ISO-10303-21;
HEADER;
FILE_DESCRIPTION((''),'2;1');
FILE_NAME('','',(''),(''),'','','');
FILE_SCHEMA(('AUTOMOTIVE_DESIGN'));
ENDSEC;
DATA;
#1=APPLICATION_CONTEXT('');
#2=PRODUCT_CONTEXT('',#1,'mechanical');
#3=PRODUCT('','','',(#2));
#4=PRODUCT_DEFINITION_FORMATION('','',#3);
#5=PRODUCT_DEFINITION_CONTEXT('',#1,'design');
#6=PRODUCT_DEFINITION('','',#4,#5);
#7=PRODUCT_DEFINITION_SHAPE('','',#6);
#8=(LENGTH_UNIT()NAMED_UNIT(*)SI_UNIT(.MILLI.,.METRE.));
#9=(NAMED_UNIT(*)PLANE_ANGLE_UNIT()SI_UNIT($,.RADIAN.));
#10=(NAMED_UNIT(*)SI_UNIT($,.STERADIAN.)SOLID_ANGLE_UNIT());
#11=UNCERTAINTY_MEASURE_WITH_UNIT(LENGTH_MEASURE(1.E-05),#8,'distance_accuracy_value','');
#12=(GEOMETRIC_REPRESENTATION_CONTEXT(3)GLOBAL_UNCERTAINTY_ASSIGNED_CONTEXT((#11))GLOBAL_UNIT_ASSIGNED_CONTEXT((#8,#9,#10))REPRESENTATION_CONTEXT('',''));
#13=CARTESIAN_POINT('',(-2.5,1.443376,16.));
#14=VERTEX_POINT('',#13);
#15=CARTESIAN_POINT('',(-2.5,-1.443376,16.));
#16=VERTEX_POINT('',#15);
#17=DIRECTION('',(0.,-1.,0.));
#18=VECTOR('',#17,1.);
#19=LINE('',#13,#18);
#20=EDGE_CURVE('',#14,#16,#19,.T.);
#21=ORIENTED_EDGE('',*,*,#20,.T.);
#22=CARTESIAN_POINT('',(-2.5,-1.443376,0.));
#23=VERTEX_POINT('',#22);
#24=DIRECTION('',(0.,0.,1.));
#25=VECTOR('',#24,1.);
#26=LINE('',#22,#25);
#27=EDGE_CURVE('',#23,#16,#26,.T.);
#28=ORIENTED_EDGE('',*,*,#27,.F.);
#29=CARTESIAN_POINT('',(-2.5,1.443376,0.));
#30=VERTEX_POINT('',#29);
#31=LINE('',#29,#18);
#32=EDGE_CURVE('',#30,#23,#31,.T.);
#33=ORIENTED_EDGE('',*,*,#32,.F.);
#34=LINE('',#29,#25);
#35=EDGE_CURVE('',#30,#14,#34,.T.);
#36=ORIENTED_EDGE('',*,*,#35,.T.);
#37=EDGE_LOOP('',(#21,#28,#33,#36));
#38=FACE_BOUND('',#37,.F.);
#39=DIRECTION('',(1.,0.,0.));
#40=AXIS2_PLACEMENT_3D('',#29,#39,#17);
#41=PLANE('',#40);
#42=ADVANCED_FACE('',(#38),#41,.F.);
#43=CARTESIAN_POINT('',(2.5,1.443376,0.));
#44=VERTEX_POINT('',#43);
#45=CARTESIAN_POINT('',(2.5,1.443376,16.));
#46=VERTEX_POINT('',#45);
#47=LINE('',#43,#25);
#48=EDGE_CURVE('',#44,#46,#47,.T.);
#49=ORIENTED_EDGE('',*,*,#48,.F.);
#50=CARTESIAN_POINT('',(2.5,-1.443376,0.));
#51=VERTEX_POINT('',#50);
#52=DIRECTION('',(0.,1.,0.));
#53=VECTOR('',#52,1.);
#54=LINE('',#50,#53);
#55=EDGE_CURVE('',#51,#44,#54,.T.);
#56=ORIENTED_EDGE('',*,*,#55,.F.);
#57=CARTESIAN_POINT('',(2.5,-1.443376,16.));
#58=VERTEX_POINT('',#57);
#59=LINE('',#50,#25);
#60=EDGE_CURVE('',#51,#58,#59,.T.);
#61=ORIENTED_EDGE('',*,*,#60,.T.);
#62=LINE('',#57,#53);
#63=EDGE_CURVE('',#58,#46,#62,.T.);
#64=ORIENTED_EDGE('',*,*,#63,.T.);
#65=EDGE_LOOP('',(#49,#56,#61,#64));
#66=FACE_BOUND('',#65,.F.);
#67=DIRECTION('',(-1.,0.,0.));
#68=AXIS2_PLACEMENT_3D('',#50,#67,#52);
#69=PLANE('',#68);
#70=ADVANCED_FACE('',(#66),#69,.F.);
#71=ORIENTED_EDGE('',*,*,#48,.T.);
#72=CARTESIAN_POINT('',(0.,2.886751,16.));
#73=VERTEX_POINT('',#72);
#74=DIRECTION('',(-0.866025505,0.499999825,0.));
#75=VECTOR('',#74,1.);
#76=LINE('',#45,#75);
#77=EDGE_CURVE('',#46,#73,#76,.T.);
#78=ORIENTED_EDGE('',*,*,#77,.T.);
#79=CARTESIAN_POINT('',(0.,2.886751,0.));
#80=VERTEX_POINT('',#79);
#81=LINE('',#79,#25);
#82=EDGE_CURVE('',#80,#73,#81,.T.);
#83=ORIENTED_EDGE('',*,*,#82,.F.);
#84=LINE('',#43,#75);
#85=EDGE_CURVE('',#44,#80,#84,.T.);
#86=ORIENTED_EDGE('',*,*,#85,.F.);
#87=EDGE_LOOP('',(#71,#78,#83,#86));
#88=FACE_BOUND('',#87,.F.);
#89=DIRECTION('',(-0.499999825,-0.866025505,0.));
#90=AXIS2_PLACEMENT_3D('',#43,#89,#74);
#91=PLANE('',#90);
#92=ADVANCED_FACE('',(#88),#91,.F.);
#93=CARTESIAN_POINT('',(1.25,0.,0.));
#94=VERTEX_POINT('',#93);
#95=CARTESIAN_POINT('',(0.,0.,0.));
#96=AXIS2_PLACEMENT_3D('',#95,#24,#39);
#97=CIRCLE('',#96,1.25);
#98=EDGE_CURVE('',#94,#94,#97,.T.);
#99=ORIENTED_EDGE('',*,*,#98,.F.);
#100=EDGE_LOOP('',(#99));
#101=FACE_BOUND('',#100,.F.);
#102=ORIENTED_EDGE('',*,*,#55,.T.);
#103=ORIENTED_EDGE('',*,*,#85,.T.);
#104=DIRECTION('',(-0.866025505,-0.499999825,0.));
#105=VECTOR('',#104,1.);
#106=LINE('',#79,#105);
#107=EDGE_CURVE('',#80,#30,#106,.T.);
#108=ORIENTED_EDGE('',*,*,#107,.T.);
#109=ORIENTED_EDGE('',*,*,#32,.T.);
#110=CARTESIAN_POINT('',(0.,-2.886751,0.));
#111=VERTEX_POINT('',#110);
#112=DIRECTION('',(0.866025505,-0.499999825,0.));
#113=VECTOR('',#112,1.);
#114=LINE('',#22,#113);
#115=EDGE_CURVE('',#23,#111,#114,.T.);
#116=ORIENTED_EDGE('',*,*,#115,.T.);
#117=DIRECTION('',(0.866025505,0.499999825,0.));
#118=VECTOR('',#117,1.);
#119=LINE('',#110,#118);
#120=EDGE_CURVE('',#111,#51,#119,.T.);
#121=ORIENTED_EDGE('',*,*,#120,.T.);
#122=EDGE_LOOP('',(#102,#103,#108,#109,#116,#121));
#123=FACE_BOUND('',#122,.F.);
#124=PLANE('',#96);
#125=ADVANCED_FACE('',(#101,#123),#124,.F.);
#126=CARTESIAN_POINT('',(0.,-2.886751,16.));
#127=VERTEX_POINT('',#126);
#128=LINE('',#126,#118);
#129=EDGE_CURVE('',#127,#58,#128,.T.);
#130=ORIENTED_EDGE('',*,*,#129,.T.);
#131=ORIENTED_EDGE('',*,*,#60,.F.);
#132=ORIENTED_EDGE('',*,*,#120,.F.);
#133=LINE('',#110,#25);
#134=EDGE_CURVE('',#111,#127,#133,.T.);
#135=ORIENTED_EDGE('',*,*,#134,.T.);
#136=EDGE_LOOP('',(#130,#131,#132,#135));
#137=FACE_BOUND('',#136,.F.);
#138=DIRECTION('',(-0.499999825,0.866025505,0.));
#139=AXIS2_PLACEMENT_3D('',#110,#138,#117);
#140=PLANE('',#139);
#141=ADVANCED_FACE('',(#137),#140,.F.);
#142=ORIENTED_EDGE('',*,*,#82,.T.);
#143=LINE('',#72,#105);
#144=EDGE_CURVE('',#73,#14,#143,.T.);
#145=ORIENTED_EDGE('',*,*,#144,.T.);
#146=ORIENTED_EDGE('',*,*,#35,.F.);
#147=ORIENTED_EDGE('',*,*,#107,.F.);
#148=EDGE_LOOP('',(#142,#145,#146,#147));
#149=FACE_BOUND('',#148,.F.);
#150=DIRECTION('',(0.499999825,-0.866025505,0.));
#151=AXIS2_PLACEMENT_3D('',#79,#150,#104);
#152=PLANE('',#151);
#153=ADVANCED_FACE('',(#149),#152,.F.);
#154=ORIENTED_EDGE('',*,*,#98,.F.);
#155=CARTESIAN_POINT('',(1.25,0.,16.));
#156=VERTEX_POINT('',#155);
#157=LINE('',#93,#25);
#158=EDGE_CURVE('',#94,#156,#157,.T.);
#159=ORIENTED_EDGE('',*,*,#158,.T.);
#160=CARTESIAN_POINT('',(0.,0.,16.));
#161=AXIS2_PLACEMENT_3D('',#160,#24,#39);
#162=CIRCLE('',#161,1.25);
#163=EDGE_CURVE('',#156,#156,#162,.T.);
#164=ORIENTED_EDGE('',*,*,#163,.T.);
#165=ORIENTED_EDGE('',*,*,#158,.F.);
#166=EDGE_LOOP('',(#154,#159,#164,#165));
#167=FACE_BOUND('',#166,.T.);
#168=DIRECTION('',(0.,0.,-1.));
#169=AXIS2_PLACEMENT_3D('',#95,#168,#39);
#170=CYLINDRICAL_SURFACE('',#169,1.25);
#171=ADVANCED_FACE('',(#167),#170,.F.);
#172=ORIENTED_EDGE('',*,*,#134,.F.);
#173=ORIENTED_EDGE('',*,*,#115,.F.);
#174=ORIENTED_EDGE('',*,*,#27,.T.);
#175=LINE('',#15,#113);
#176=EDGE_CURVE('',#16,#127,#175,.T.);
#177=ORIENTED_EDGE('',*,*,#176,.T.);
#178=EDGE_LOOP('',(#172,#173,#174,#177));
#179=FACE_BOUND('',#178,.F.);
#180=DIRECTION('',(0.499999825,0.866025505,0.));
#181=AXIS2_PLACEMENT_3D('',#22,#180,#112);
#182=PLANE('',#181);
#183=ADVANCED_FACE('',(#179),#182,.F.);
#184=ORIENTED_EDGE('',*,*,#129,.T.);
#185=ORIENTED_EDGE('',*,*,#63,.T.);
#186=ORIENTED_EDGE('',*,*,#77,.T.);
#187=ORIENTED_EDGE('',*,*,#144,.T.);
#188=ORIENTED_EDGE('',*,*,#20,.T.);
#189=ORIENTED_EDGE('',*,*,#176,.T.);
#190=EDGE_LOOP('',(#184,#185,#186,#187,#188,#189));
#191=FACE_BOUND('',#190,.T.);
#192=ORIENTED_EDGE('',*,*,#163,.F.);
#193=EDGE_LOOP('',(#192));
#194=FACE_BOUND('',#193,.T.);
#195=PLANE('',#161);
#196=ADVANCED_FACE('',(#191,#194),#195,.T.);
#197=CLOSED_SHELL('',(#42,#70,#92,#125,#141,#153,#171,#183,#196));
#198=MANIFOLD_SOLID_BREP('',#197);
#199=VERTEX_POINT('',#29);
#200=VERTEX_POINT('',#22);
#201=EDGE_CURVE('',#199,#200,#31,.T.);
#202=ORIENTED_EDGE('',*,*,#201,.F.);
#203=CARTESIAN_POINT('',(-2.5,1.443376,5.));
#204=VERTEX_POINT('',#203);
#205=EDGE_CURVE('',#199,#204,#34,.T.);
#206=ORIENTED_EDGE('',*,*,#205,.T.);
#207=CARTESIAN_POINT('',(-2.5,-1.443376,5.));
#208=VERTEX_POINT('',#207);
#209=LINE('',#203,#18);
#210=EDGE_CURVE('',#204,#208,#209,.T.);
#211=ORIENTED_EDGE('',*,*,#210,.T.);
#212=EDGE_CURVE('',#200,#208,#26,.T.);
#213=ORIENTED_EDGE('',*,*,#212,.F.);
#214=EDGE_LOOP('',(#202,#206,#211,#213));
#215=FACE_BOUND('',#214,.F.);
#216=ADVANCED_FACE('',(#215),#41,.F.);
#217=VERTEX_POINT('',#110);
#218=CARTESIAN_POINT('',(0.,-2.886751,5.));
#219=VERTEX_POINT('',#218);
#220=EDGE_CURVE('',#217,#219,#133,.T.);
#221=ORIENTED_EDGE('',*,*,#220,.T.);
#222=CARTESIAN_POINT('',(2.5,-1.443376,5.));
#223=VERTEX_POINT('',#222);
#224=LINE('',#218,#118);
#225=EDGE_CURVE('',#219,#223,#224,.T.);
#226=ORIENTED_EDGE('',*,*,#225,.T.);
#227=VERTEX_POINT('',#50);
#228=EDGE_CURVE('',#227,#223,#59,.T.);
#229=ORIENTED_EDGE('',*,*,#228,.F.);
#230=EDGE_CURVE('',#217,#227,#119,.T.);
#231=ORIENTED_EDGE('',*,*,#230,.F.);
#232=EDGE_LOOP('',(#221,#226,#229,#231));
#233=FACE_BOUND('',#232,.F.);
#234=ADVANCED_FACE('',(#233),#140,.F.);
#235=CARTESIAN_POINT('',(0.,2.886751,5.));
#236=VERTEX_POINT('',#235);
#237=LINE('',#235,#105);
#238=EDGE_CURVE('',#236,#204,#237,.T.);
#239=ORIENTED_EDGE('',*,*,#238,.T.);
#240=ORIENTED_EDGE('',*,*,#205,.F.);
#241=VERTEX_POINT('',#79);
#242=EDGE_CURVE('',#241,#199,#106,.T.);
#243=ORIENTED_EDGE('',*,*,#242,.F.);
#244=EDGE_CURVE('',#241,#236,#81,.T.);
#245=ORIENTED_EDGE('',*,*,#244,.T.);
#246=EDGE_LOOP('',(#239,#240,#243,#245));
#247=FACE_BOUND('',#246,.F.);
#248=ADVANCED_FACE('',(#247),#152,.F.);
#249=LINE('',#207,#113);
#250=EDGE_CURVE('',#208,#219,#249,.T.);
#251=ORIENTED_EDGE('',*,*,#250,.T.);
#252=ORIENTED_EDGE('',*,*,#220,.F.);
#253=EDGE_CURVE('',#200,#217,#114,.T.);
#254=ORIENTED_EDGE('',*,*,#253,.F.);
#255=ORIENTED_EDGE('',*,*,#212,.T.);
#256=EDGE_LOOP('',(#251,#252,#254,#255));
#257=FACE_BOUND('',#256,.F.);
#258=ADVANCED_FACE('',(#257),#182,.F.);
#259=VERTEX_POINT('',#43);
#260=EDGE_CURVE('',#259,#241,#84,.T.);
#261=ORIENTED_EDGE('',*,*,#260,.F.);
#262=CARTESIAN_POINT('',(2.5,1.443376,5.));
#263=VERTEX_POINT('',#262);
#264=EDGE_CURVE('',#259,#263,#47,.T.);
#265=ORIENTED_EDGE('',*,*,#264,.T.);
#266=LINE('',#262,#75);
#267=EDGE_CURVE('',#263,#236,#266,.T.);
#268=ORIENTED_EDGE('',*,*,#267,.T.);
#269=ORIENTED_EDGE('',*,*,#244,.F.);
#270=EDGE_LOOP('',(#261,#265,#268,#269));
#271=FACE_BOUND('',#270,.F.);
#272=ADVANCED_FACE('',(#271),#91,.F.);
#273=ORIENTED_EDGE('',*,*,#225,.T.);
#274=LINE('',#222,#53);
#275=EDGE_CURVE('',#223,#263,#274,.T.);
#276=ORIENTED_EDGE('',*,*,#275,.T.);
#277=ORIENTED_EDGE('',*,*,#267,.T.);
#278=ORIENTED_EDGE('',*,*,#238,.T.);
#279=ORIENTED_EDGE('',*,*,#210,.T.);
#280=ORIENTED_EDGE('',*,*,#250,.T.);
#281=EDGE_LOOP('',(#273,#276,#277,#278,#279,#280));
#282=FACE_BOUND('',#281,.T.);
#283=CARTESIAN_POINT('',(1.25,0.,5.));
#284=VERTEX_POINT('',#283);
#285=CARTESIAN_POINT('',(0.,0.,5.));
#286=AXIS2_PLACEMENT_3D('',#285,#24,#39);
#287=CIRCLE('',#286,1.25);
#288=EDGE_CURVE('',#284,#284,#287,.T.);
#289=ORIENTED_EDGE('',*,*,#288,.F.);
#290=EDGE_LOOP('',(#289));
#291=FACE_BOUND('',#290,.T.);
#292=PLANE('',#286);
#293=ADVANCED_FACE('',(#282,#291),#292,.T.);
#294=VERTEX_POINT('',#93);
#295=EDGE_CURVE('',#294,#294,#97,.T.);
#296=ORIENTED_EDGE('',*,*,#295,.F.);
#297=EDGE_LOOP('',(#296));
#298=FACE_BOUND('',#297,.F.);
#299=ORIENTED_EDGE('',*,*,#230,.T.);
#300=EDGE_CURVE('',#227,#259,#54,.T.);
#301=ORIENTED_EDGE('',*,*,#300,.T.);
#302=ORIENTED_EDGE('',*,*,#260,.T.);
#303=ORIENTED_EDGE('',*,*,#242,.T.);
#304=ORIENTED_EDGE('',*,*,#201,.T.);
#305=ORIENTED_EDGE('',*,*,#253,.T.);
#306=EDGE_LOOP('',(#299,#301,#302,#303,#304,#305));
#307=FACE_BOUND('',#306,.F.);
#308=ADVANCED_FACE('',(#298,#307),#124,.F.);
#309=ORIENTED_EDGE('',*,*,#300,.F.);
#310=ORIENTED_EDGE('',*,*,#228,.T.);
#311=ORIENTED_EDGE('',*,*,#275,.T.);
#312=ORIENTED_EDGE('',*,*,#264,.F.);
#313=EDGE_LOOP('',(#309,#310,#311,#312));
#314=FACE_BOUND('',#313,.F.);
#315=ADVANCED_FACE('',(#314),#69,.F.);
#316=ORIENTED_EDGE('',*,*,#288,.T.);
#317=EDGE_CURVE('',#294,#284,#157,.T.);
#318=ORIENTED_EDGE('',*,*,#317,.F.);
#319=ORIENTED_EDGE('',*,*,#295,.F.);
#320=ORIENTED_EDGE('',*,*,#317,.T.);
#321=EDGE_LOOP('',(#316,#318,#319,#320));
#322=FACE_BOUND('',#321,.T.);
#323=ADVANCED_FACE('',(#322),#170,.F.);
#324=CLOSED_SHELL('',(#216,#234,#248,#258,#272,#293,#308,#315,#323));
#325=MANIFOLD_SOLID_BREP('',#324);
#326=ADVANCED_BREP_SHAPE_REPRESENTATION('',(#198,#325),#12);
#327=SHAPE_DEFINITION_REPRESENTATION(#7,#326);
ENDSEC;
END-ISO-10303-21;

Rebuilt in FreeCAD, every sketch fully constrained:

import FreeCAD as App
import Part
import Sketcher
from FreeCAD import Vector
Q = App.Units.Quantity


def add_polygon(sketch, points):
    """Adds a closed chain of lines whose ends are joined by coincident constraints."""
    first, n = sketch.GeometryCount, len(points)
    for a, b in zip(points, points[1:] + points[:1]):
        sketch.addGeometry(Part.LineSegment(App.Vector(*a, 0), App.Vector(*b, 0)), False)
    for i in range(n):
        sketch.addConstraint(Sketcher.Constraint("Coincident", first + i, 2, first + (i + 1) % n, 1))

doc = App.newDocument("Part")
params = doc.addObject("Spreadsheet::Sheet", "Params")
for row, (alias, value) in enumerate([
    ("sketch1_diameter", "2.5 mm"),
    ("pad1_length", "5 mm"),
    ("sketch2_diameter", "2.5 mm"),
    ("pad2_length", "16 mm"),
], start=1):
    params.set(f"A{row}", alias)
    params.set(f"B{row}", "=" + value)
    params.setAlias(f"B{row}", alias)

body = doc.addObject("PartDesign::Body", "Body")

sketch1 = body.newObject("Sketcher::SketchObject", "Sketch")
sketch1.AttachmentSupport = (doc.getObject("XY_Plane"), [""])
sketch1.MapMode = "FlatFace"
add_polygon(sketch1, [(-2.5, 1.4), (-2.5, -1.4), (0, -2.9), (2.5, -1.4), (2.5, 1.4), (0, 2.9)])
sketch1.addGeometry(Part.Circle(Vector(0, 0, 0), Vector(0, 0, 1), 1.2), False)
sketch1.addConstraint(Sketcher.Constraint("Vertical", 0))
sketch1.addConstraint(Sketcher.Constraint("Vertical", 3))
sketch1.addConstraint(Sketcher.Constraint("Coincident", 6, 3, -1, 1))
sketch1.addConstraint(Sketcher.Constraint("Symmetric", 0, 2, 3, 2, -1, 1))
sketch1.addConstraint(Sketcher.Constraint("Symmetric", 1, 2, 4, 2, -1, 1))
sketch1.addConstraint(Sketcher.Constraint("PointOnObject", 1, 2, -2))
sketch1.addConstraint(Sketcher.Constraint("Parallel", 2, 5))
sketch1.addConstraint(Sketcher.Constraint("Horizontal", 0, 2, 2, 2))
sketch1.addConstraint(Sketcher.Constraint("Diameter", 6, 2.5))
sketch1.addConstraint(Sketcher.Constraint("Angle", 1, Q("-29.999988 deg")))
sketch1.addConstraint(Sketcher.Constraint("DistanceX", 0, 2, 2, 2, 5.0))
sketch1.addConstraint(Sketcher.Constraint("DistanceY", 0, 2, 0, 1, 2.886752))
sketch1.setExpression("Constraints[14]", "Params.sketch1_diameter")
pad1 = body.newObject("PartDesign::Pad", "Pad")
pad1.Profile = sketch1
pad1.setExpression("Length", "Params.pad1_length")
body2 = doc.addObject("PartDesign::Body", "Body001")

sketch2 = body2.newObject("Sketcher::SketchObject", "Sketch001")
sketch2.AttachmentSupport = (doc.getObject("XY_Plane001"), [""])
sketch2.MapMode = "FlatFace"
add_polygon(sketch2, [(-2.5, 1.4), (-2.5, -1.4), (0, -2.9), (2.5, -1.4), (2.5, 1.4), (0, 2.9)])
sketch2.addGeometry(Part.Circle(Vector(0, 0, 0), Vector(0, 0, 1), 1.2), False)
sketch2.addConstraint(Sketcher.Constraint("Vertical", 0))
sketch2.addConstraint(Sketcher.Constraint("Vertical", 3))
sketch2.addConstraint(Sketcher.Constraint("Coincident", 6, 3, -1, 1))
sketch2.addConstraint(Sketcher.Constraint("Symmetric", 0, 2, 3, 2, -1, 1))
sketch2.addConstraint(Sketcher.Constraint("Symmetric", 1, 2, 4, 2, -1, 1))
sketch2.addConstraint(Sketcher.Constraint("PointOnObject", 1, 2, -2))
sketch2.addConstraint(Sketcher.Constraint("Parallel", 2, 5))
sketch2.addConstraint(Sketcher.Constraint("Horizontal", 0, 2, 2, 2))
sketch2.addConstraint(Sketcher.Constraint("Diameter", 6, 2.5))
sketch2.addConstraint(Sketcher.Constraint("Angle", 1, Q("-29.999988 deg")))
sketch2.addConstraint(Sketcher.Constraint("DistanceX", 0, 2, 2, 2, 5.0))
sketch2.addConstraint(Sketcher.Constraint("DistanceY", 0, 2, 0, 1, 2.886752))
sketch2.setExpression("Constraints[14]", "Params.sketch2_diameter")
pad2 = body2.newObject("PartDesign::Pad", "Pad001")
pad2.Profile = sketch2
pad2.setExpression("Length", "Params.pad2_length")

doc.recompute()
